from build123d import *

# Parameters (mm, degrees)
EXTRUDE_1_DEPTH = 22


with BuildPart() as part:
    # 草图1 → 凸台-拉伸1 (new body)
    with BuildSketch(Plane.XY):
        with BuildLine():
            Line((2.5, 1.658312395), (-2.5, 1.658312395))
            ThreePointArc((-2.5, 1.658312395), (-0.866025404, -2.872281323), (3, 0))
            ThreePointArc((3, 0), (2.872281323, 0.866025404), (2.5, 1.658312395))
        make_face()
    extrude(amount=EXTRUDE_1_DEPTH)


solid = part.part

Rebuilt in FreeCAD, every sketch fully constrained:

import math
import FreeCAD as App
import Part
import Sketcher
from FreeCAD import Vector
Q = App.Units.Quantity

doc = App.newDocument("Part")
body = doc.addObject("PartDesign::Body", "Body")

sketch1 = body.newObject("Sketcher::SketchObject", "Sketch")
sketch1.AttachmentSupport = (doc.getObject("XY_Plane"), [""])
sketch1.MapMode = "FlatFace"
sketch1.addGeometry([
    Part.LineSegment(Vector(2.5, 1.658312, 0), Vector(-2.5, 1.658312, 0)),
    Part.ArcOfCircle(Part.Circle(Vector(0, 0, 0), Vector(0, 0, 1), 3), math.radians(146.44269), math.radians(360)),
    Part.ArcOfCircle(Part.Circle(Vector(0, 0, 0), Vector(0, 0, 1), 3), math.radians(0), math.radians(33.55731)),
], False)
sketch1.addConstraint([
    Sketcher.Constraint("Coincident", 0, 2, 1, 1),
    Sketcher.Constraint("Tangent", 1, 2, 2, 1),
    Sketcher.Constraint("Coincident", 2, 2, 0, 1),
    Sketcher.Constraint("Horizontal", 0),
    Sketcher.Constraint("Coincident", 1, 3, -1, 1),
    Sketcher.Constraint("Equal", 1, 2),
    Sketcher.Constraint("PointOnObject", 1, 2, -1),
    Sketcher.Constraint("Radius", 1, Q("3 mm")),
    Sketcher.Constraint("DistanceX", 0, 2, 0, 1, Q("5 mm")),
])
pad1 = body.newObject("PartDesign::Pad", "Pad")
pad1.Profile = sketch1
pad1.Length = 22

doc.recompute()
